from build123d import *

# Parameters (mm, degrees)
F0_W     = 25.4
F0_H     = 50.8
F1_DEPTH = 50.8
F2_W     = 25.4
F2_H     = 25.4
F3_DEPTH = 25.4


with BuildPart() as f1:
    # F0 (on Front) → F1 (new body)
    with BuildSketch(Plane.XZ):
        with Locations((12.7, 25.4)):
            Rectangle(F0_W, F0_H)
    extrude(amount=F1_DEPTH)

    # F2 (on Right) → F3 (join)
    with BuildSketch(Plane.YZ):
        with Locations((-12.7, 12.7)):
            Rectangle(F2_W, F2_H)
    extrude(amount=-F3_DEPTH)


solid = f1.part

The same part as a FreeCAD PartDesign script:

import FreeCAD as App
import Part
import Sketcher

V = App.Vector
Q = App.Units.Quantity


def add_polygon(sketch, points):
    """Adds a closed chain of lines whose ends are joined by coincident constraints."""
    first, n = sketch.GeometryCount, len(points)
    for a, b in zip(points, points[1:] + points[:1]):
        sketch.addGeometry(Part.LineSegment(App.Vector(*a, 0), App.Vector(*b, 0)), False)
    for i in range(n):
        sketch.addConstraint(Sketcher.Constraint("Coincident", first + i, 2, first + (i + 1) % n, 1))

doc = App.newDocument("Part")
body = doc.addObject("PartDesign::Body", "Body")

# Sketch on XZ plane
sketch1 = body.newObject("Sketcher::SketchObject", "Sketch")
sketch1.AttachmentSupport = (doc.getObject("XZ_Plane"), [""])
sketch1.MapMode = "FlatFace"
add_polygon(sketch1, [(0, 51), (0, 0), (25, 0), (25, 51)])  # lines 0-3
sketch1.addConstraint([
    Sketcher.Constraint("Vertical", 0),
    Sketcher.Constraint("Horizontal", 1),
    Sketcher.Constraint("Vertical", 2),
    Sketcher.Constraint("Horizontal", 3),
    Sketcher.Constraint("Coincident", 0, 2, -1, 1),
    Sketcher.Constraint("DistanceX", 1, 1, 1, 2, Q("1 in")),
    Sketcher.Constraint("DistanceY", 0, 2, 0, 1, Q("2 in")),
])
pad1 = body.newObject("PartDesign::Pad", "Pad")
pad1.Profile = sketch1
pad1.Length = Q("2 in")

# Sketch on YZ plane
sketch2 = body.newObject("Sketcher::SketchObject", "Sketch001")
sketch2.AttachmentSupport = (doc.getObject("YZ_Plane"), [""])
sketch2.MapMode = "FlatFace"
add_polygon(sketch2, [(-25, 25), (-25, 0), (0, 0), (0, 25)])  # lines 0-3
sketch2.addConstraint([
    Sketcher.Constraint("Vertical", 0),
    Sketcher.Constraint("Horizontal", 1),
    Sketcher.Constraint("Vertical", 2),
    Sketcher.Constraint("Horizontal", 3),
    Sketcher.Constraint("Coincident", 1, 2, -1, 1),
    Sketcher.Constraint("Equal", 3, 0),
    Sketcher.Constraint("DistanceX", 1, 1, 1, 2, Q("1 in")),
])
pad2 = body.newObject("PartDesign::Pad", "Pad001")
pad2.Profile = sketch2
pad2.Length = Q("1 in")
pad2.Reversed = True

doc.recompute()
